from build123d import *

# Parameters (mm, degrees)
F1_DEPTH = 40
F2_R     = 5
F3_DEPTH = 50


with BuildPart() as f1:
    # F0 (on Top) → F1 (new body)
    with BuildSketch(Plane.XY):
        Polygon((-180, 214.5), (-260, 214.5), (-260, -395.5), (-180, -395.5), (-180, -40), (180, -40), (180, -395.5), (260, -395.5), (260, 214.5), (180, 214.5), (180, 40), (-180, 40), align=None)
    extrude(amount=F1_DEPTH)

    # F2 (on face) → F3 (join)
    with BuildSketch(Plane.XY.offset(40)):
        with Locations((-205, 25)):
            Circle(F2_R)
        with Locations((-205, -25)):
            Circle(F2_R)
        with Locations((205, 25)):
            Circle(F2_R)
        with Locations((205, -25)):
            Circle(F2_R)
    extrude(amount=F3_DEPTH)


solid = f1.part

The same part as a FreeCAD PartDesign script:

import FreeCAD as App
import Part
import Sketcher

V = App.Vector


def add_polygon(sketch, points):
    """Adds a closed chain of lines whose ends are joined by coincident constraints."""
    first, n = sketch.GeometryCount, len(points)
    for a, b in zip(points, points[1:] + points[:1]):
        sketch.addGeometry(Part.LineSegment(App.Vector(*a, 0), App.Vector(*b, 0)), False)
    for i in range(n):
        sketch.addConstraint(Sketcher.Constraint("Coincident", first + i, 2, first + (i + 1) % n, 1))

doc = App.newDocument("Part")
body = doc.addObject("PartDesign::Body", "Body")

# Sketch on XY plane
sketch1 = doc.addObject("Sketcher::SketchObject", "Sketch")
body.addObject(sketch1)
sketch1.AttachmentSupport = (doc.XY_Plane, [""])
sketch1.MapMode = "FlatFace"
add_polygon(sketch1, [(-180, 214), (-260, 214), (-260, -396), (-180, -396), (-180, -40), (180, -40), (180, -396), (260, -396), (260, 214), (180, 214), (180, 40), (-180, 40)])  # lines 0-11
sketch1.addConstraint(Sketcher.Constraint("Horizontal", 0))
sketch1.addConstraint(Sketcher.Constraint("Vertical", 1))
sketch1.addConstraint(Sketcher.Constraint("Horizontal", 2))
sketch1.addConstraint(Sketcher.Constraint("Vertical", 3))
sketch1.addConstraint(Sketcher.Constraint("Horizontal", 4))
sketch1.addConstraint(Sketcher.Constraint("Vertical", 5))
sketch1.addConstraint(Sketcher.Constraint("Horizontal", 6))
sketch1.addConstraint(Sketcher.Constraint("Vertical", 7))
sketch1.addConstraint(Sketcher.Constraint("Horizontal", 8))
sketch1.addConstraint(Sketcher.Constraint("Vertical", 9))
sketch1.addConstraint(Sketcher.Constraint("Horizontal", 10))
sketch1.addConstraint(Sketcher.Constraint("Vertical", 11))
sketch1.addConstraint(Sketcher.Constraint("Symmetric", 3, 2, 9, 2, -1, 1))
sketch1.addConstraint(Sketcher.Constraint("Symmetric", 2, 2, 5, 2, -2))
sketch1.addConstraint(Sketcher.Constraint("Symmetric", 0, 2, 7, 2, -2))
sketch1.addConstraint(Sketcher.Constraint("Vertical", 3, 2, 10, 2))
sketch1.addConstraint(Sketcher.Constraint("DistanceX", 0, 2, 0, 1, 80.0))
sketch1.addConstraint(Sketcher.Constraint("DistanceX", 4, 1, 4, 2, 360.0))
sketch1.addConstraint(Sketcher.Constraint("DistanceY", 1, 2, 1, 1, 610.0))
sketch1.addConstraint(Sketcher.Constraint("DistanceY", 3, 1, 3, 2, 355.5))
sketch1.addConstraint(Sketcher.Constraint("DistanceY", 9, 2, 9, 1, 174.5))
pad1 = doc.addObject("PartDesign::Pad", "Pad")
body.addObject(pad1)
pad1.Profile = sketch1
pad1.Length = 40

# Sketch on XY plane
sketch2 = doc.addObject("Sketcher::SketchObject", "Sketch001")
body.addObject(sketch2)
sketch2.AttachmentSupport = (doc.XY_Plane, [""])
sketch2.MapMode = "FlatFace"
sketch2.AttachmentOffset = App.Placement(V(0, 0, 40), App.Rotation())
sketch2.addGeometry(Part.Circle(V(-205, 25, 0), V(0, 0, 1), 5), False)
sketch2.addGeometry(Part.Circle(V(-205, -25, 0), V(0, 0, 1), 5), False)
sketch2.addGeometry(Part.Circle(V(205, 25, 0), V(0, 0, 1), 5), False)
sketch2.addGeometry(Part.Circle(V(205, -25, 0), V(0, 0, 1), 5), False)
sketch2.addConstraint(Sketcher.Constraint("Equal", 0, 1))
sketch2.addConstraint(Sketcher.Constraint("Equal", 1, 2))
sketch2.addConstraint(Sketcher.Constraint("Equal", 2, 3))
sketch2.addConstraint(Sketcher.Constraint("Symmetric", 1, 3, 2, 3, -1, 1))
sketch2.addConstraint(Sketcher.Constraint("Symmetric", 0, 3, 3, 3, -1, 1))
sketch2.addConstraint(Sketcher.Constraint("Symmetric", 0, 3, 2, 3, -2))
sketch2.addConstraint(Sketcher.Constraint("Diameter", 0, 10.0))
sketch2.addConstraint(Sketcher.Constraint("DistanceX", 0, 3, -1, 1, 205.0))
sketch2.addConstraint(Sketcher.Constraint("DistanceY", -1, 1, 0, 3, 25.0))
pad2 = doc.addObject("PartDesign::Pad", "Pad001")
body.addObject(pad2)
pad2.Profile = sketch2
pad2.Length = 50

doc.recompute()
